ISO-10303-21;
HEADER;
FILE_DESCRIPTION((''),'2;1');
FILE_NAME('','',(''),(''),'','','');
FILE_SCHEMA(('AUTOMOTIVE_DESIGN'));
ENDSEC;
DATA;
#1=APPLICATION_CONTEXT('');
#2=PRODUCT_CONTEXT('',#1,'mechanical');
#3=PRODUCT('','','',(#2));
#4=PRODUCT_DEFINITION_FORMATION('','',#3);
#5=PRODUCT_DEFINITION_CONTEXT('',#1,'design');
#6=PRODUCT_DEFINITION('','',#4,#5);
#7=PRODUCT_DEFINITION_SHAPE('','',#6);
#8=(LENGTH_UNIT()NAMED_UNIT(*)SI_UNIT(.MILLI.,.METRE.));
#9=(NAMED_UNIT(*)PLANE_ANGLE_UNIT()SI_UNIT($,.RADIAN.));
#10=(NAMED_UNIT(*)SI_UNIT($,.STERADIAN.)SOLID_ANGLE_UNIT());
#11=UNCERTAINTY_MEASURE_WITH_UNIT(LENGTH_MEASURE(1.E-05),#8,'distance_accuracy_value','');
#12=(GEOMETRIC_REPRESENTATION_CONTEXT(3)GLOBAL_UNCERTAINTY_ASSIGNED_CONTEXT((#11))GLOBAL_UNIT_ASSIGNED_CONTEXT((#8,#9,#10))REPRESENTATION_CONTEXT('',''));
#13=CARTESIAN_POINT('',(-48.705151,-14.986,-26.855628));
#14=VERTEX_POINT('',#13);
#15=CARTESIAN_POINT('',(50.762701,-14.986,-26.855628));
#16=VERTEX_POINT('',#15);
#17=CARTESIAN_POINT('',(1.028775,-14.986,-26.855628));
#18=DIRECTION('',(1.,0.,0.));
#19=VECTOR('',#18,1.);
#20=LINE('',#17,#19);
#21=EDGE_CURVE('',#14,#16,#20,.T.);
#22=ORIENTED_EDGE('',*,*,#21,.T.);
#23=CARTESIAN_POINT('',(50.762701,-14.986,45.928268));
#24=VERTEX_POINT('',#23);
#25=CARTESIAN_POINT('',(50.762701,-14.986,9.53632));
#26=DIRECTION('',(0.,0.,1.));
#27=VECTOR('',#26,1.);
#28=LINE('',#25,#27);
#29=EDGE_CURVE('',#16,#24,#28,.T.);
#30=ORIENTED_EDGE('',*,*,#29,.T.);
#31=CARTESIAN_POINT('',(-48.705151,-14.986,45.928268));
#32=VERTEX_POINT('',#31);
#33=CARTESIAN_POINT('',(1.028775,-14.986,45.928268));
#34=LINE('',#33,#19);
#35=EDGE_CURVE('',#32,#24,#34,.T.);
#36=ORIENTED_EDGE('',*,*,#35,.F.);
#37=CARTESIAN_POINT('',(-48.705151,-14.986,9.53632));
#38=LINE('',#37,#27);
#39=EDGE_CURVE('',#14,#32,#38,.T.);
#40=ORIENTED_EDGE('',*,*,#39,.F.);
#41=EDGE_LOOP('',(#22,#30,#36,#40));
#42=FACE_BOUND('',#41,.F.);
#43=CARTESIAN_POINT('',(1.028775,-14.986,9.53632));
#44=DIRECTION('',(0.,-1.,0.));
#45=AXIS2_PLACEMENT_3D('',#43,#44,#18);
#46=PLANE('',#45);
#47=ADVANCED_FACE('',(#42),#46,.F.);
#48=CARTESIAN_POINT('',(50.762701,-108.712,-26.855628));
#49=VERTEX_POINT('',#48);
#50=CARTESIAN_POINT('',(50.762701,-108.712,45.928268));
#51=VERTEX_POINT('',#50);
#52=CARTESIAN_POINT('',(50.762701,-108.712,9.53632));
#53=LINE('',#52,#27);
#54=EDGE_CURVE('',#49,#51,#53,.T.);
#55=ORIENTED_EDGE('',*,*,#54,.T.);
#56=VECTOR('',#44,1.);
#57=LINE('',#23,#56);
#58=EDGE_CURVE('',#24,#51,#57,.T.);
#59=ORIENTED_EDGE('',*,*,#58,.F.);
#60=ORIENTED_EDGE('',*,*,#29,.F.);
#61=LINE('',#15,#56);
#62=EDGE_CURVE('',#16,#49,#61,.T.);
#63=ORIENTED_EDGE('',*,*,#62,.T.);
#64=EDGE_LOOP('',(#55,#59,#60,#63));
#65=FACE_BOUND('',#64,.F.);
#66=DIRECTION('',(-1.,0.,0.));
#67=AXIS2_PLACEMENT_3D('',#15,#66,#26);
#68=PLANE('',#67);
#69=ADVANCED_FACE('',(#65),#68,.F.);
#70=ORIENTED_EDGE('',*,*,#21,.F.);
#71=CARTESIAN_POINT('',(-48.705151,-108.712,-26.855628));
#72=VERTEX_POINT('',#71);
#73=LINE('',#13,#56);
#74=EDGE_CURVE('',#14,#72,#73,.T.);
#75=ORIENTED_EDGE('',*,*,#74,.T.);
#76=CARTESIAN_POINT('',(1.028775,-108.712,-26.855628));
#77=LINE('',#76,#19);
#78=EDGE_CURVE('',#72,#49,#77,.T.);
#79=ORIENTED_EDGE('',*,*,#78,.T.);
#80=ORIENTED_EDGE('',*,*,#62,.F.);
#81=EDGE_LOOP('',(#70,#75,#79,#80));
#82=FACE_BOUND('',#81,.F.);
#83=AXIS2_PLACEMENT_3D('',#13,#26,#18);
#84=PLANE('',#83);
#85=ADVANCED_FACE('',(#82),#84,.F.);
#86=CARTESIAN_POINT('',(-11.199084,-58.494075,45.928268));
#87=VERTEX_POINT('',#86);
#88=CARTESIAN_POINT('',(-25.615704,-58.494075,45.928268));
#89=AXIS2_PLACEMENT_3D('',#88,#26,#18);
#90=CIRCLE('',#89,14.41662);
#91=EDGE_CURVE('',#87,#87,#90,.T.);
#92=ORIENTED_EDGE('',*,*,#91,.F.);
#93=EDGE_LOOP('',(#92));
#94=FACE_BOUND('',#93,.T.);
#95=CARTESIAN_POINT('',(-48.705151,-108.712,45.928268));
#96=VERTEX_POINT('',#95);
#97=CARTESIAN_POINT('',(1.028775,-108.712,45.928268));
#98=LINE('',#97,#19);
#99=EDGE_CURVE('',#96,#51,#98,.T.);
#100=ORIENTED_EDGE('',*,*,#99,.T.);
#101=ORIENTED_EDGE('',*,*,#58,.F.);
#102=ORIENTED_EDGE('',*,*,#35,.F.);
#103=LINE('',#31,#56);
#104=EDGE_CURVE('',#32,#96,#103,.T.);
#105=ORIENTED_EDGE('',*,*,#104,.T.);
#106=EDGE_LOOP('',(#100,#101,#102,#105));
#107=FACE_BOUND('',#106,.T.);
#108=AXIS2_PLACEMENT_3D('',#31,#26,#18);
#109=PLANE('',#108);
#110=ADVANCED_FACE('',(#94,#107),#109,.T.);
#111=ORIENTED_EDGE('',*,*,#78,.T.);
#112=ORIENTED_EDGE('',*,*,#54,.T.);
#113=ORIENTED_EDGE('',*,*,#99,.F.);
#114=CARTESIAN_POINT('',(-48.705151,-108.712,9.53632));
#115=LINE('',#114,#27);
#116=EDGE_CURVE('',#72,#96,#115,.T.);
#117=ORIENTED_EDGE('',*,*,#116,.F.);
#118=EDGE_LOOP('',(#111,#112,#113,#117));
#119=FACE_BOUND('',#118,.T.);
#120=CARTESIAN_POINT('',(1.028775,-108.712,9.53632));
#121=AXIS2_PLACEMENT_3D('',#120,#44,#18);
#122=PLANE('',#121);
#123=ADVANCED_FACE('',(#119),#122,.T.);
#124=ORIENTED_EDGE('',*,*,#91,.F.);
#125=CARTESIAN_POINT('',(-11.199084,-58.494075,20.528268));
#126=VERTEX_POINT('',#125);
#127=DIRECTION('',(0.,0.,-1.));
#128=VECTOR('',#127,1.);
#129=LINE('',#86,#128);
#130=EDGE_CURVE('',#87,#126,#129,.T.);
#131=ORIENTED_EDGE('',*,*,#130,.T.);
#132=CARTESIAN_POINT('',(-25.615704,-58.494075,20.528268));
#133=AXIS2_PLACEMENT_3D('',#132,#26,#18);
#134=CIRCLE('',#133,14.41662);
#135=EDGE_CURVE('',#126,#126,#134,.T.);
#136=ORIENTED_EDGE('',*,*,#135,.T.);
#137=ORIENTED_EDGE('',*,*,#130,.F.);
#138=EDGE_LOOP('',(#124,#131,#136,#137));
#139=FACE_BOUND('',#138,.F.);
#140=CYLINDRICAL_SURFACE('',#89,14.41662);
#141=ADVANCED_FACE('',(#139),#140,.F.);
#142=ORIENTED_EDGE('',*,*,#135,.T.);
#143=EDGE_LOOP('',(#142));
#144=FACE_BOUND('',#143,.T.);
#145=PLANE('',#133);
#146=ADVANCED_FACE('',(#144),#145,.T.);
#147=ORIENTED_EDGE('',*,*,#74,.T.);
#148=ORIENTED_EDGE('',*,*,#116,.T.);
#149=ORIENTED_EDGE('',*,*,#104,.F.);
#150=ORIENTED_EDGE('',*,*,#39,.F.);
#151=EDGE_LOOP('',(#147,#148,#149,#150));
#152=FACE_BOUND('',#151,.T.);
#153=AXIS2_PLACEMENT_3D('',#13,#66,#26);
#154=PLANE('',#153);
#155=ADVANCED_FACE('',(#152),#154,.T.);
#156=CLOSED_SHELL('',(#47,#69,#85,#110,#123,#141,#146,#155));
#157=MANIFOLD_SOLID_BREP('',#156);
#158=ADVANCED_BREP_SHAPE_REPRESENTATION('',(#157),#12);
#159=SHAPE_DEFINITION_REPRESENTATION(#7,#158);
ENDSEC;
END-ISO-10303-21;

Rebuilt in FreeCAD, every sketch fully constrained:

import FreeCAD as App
import Part
import Sketcher

V = App.Vector
Q = App.Units.Quantity

doc = App.newDocument("Part")
body = doc.addObject("PartDesign::Body", "Body")

# Sketch on XZ plane
sketch1 = body.newObject("Sketcher::SketchObject", "Sketch")
sketch1.AttachmentSupport = (doc.getObject("XZ_Plane"), [""])
sketch1.MapMode = "FlatFace"
sketch1.addGeometry([
    Part.LineSegment(V(-62, 42, 0), V(-62, -31, 0)),
    Part.LineSegment(V(-62, -31, 0), V(37, -31, 0)),
    Part.LineSegment(V(37, -31, 0), V(37, 42, 0)),
    Part.LineSegment(V(37, 42, 0), V(-62, 42, 0)),
], False)
sketch1.addConstraint([
    Sketcher.Constraint("Coincident", 0, 2, 1, 1),
    Sketcher.Constraint("Coincident", 1, 2, 2, 1),
    Sketcher.Constraint("Coincident", 2, 2, 3, 1),
    Sketcher.Constraint("Coincident", 3, 2, 0, 1),
    Sketcher.Constraint("Vertical", 0),
    Sketcher.Constraint("Horizontal", 1),
    Sketcher.Constraint("Vertical", 2),
    Sketcher.Constraint("Horizontal", 3),
    Sketcher.Constraint("DistanceX", 1, 1, 1, 2, 99.467852),
    Sketcher.Constraint("DistanceX", -1, 1, 1, 2, 37.046701),
    Sketcher.Constraint("DistanceY", 0, 2, 0, 1, 72.783896),
    Sketcher.Constraint("DistanceY", -1, 1, 2, 2, 41.864268),
])
pad1 = body.newObject("PartDesign::Pad", "Pad")
pad1.Profile = sketch1
pad1.Length = Q("3.69 in")

# Sketch on XY plane
sketch2 = body.newObject("Sketcher::SketchObject", "Sketch001")
sketch2.AttachmentSupport = (doc.getObject("XY_Plane"), [""])
sketch2.MapMode = "FlatFace"
sketch2.AttachmentOffset = App.Placement(V(0, 0, 41.864268), App.Rotation())
sketch2.addGeometry(Part.Circle(V(-39, -44, 0), V(0, 0, 1), 14), False)
sketch2.addConstraint([
    Sketcher.Constraint("Diameter", 0, 28.83324),
    Sketcher.Constraint("DistanceX", 0, 3, -1, 1, 39.331704),
    Sketcher.Constraint("DistanceY", 0, 3, -1, 1, 43.508075),
])
pocket1 = body.newObject("PartDesign::Pocket", "Pocket")
pocket1.Profile = sketch2
pocket1.Length = Q("1 in")
body2 = doc.addObject("PartDesign::Body", "Body001")
doc.recompute()

body.Placement = App.Placement(V(13.716, -14.986, 4.064), App.Rotation(V(0, 0, 1), 0))
boolean = body2.newObject("PartDesign::Boolean", "Boolean")
boolean.Type = "Fuse"
boolean.addObjects([body])

doc.recompute()
